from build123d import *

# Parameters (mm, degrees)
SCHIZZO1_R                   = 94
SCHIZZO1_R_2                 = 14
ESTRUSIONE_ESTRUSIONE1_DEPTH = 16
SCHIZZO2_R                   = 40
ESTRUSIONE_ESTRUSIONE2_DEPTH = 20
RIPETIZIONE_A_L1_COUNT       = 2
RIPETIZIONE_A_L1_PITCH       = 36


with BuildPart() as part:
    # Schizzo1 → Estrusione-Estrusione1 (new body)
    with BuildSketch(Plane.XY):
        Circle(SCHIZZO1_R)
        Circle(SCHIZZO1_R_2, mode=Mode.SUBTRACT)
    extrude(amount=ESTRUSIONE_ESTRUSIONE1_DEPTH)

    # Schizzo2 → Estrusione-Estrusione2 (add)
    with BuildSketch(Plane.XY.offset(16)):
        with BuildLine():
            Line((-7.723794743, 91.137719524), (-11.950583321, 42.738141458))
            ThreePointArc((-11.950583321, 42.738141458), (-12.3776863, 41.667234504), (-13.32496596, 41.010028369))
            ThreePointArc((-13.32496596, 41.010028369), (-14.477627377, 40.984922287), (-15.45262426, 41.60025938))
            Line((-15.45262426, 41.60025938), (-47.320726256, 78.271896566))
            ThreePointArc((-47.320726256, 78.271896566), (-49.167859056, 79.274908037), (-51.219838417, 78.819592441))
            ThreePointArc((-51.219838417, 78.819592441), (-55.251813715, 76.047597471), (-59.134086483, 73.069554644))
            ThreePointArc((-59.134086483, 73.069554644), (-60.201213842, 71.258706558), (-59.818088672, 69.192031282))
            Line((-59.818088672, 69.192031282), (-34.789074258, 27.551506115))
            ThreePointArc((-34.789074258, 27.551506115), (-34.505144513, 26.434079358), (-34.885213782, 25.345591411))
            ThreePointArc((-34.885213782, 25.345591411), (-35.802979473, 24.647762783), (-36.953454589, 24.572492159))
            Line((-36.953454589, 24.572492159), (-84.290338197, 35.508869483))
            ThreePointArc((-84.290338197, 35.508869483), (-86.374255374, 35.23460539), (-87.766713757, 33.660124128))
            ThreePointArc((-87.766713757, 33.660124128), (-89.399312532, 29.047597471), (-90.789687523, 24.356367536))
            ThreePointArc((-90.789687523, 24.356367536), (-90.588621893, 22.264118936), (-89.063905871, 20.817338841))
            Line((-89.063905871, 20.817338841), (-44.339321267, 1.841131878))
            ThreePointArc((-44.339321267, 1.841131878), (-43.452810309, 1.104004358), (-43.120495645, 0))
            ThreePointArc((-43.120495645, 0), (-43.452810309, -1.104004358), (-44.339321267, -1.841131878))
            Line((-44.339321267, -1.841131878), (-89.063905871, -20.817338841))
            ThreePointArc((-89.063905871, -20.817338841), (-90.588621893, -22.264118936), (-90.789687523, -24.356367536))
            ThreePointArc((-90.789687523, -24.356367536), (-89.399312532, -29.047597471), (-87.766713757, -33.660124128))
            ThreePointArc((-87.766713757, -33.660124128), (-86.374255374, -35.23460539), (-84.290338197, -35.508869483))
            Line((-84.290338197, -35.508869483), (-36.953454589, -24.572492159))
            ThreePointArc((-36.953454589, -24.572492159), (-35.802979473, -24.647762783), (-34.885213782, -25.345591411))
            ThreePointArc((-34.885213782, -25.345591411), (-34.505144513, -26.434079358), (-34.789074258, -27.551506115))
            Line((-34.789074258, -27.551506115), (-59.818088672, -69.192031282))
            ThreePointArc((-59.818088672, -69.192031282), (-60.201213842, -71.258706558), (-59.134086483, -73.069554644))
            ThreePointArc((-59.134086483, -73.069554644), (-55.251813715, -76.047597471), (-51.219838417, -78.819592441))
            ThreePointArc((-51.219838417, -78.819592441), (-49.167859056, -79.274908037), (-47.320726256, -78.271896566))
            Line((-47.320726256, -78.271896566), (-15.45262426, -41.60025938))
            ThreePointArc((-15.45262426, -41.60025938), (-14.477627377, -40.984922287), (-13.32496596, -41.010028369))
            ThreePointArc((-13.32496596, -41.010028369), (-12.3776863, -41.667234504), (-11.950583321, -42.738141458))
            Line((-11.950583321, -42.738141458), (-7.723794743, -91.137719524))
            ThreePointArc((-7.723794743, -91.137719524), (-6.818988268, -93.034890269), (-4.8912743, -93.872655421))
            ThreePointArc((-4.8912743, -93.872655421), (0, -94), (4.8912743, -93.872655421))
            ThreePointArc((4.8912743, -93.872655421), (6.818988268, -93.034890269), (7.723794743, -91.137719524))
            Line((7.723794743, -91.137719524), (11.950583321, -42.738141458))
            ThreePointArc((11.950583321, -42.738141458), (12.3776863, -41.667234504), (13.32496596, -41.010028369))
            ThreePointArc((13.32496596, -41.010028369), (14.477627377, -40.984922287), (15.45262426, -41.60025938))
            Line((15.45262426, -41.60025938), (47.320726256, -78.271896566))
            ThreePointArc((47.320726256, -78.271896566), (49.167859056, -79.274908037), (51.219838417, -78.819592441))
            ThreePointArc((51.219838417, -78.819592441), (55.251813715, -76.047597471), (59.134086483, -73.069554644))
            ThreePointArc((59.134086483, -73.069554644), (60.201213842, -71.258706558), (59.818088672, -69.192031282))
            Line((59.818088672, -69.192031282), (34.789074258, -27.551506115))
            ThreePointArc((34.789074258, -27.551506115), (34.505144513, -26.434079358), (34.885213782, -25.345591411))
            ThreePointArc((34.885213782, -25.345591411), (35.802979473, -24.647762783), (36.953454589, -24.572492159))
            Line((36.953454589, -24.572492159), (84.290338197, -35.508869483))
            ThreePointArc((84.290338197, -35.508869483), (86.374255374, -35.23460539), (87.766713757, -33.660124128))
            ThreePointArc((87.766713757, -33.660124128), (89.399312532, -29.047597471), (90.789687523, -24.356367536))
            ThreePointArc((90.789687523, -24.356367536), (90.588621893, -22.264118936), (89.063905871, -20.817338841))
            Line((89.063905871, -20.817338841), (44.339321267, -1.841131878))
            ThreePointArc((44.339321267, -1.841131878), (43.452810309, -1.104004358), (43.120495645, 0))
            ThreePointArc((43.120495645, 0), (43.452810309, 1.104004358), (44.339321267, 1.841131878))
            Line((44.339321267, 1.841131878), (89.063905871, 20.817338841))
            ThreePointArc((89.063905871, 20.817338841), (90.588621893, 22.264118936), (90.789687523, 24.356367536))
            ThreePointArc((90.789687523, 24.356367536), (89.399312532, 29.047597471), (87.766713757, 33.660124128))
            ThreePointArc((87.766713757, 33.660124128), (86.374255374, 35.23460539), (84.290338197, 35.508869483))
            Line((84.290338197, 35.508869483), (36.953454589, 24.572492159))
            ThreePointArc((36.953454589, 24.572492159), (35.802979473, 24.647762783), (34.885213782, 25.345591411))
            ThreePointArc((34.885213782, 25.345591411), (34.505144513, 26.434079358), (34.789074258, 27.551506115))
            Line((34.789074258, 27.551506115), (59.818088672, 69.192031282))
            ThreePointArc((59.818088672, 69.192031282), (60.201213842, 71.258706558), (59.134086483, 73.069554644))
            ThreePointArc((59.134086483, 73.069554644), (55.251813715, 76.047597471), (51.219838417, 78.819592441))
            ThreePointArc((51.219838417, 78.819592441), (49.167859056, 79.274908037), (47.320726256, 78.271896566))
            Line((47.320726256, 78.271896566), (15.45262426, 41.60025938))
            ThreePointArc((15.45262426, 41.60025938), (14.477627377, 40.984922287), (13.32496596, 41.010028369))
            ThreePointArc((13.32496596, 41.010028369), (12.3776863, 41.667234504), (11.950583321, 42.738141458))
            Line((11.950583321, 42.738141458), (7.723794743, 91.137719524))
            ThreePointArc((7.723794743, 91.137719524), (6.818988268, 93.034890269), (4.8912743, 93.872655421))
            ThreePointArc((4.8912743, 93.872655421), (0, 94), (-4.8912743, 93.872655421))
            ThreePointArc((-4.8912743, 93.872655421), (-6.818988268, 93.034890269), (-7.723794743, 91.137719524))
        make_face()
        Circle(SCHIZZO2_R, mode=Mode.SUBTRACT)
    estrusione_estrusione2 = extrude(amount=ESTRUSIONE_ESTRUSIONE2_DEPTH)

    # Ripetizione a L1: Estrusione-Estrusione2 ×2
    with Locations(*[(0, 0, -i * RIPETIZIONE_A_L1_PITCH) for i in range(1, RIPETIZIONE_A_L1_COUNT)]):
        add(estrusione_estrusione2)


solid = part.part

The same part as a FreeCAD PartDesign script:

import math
import FreeCAD as App
import Part
import Sketcher
from FreeCAD import Vector
Q = App.Units.Quantity

doc = App.newDocument("Part")
body = doc.addObject("PartDesign::Body", "Body")

# Sketch on XY plane
sketch1 = doc.addObject("Sketcher::SketchObject", "Sketch")
body.addObject(sketch1)
sketch1.AttachmentSupport = (doc.XY_Plane, [""])
sketch1.MapMode = "FlatFace"
sketch1.addGeometry([
    Part.Circle(Vector(0, 0, 0), Vector(0, 0, 1), 94),
    Part.Circle(Vector(0, 0, 0), Vector(0, 0, 1), 14),
], False)
sketch1.addConstraint([
    Sketcher.Constraint("Coincident", 0, 3, -1, 1),
    Sketcher.Constraint("Coincident", 1, 3, -1, 1),
    Sketcher.Constraint("Diameter", 0, Q("188 mm")),
    Sketcher.Constraint("Diameter", 1, Q("28 mm")),
])
pad1 = doc.addObject("PartDesign::Pad", "Pad")
body.addObject(pad1)
pad1.Profile = sketch1
pad1.Length = 16

# Sketch on XY plane
sketch2 = doc.addObject("Sketcher::SketchObject", "Sketch001")
body.addObject(sketch2)
sketch2.AttachmentSupport = (doc.XY_Plane, [""])
sketch2.MapMode = "FlatFace"
sketch2.AttachmentOffset = App.Placement(Vector(0, 0, 16), App.Rotation())
sketch2.addGeometry([
    Part.LineSegment(Vector(-7.7, 91.1, 0), Vector(-12, 42.7, 0)),  # 0
    Part.ArcOfCircle(Part.Circle(Vector(-13.9, 42.9, 0), Vector(0, 0, 1), 2), math.radians(-72), math.radians(-5)),  # 1
    Part.ArcOfCircle(Part.Circle(Vector(-13.9, 42.9, 0), Vector(0, 0, 1), 2), math.radians(-139), math.radians(-72)),  # 2
    Part.LineSegment(Vector(-15.5, 41.6, 0), Vector(-47.3, 78.3, 0)),  # 3
    Part.ArcOfCircle(Part.Circle(Vector(-49.6, 76.3, 0), Vector(0, 0, 1), 3), math.radians(41), math.radians(123)),  # 4
    Part.ArcOfCircle(Part.Circle(Vector(0, 0, 0), Vector(0, 0, 1), 94), math.radians(123.02), math.radians(128.98)),  # 5
    Part.ArcOfCircle(Part.Circle(Vector(-57.2, 70.7, 0), Vector(0, 0, 1), 3), math.radians(129), math.radians(211)),  # 6
    Part.LineSegment(Vector(-59.8, 69.2, 0), Vector(-34.8, 27.6, 0)),  # 7
    Part.ArcOfCircle(Part.Circle(Vector(-36.5, 26.5, 0), Vector(0, 0, 1), 2), math.radians(-36), math.radians(31)),  # 8
    Part.ArcOfCircle(Part.Circle(Vector(-36.5, 26.5, 0), Vector(0, 0, 1), 2), math.radians(-103), math.radians(-36)),  # 9
    Part.LineSegment(Vector(-37, 24.6, 0), Vector(-84.3, 35.5, 0)),  # 10
    Part.ArcOfCircle(Part.Circle(Vector(-85, 32.6, 0), Vector(0, 0, 1), 3), math.radians(77), math.radians(159)),  # 11
    Part.ArcOfCircle(Part.Circle(Vector(0, 0, 0), Vector(0, 0, 1), 94), math.radians(159.02), math.radians(164.98)),  # 12
    Part.ArcOfCircle(Part.Circle(Vector(-87.9, 23.6, 0), Vector(0, 0, 1), 3), math.radians(165), math.radians(247)),  # 13
    Part.LineSegment(Vector(-89.1, 20.8, 0), Vector(-44.3, 1.8, 0)),  # 14
    Part.ArcOfCircle(Part.Circle(Vector(-45.1, 0, 0), Vector(0, 0, 1), 2), math.radians(0), math.radians(67)),  # 15
    Part.ArcOfCircle(Part.Circle(Vector(-45.1, 0, 0), Vector(0, 0, 1), 2), math.radians(-67), math.radians(0)),  # 16
    Part.LineSegment(Vector(-44.3, -1.8, 0), Vector(-89.1, -20.8, 0)),  # 17
    Part.ArcOfCircle(Part.Circle(Vector(-87.9, -23.6, 0), Vector(0, 0, 1), 3), math.radians(113), math.radians(195)),  # 18
    Part.ArcOfCircle(Part.Circle(Vector(0, 0, 0), Vector(0, 0, 1), 94), math.radians(-164.98), math.radians(-159.02)),  # 19
    Part.ArcOfCircle(Part.Circle(Vector(-85, -32.6, 0), Vector(0, 0, 1), 3), math.radians(-159), math.radians(-77)),  # 20
    Part.LineSegment(Vector(-84.3, -35.5, 0), Vector(-37, -24.6, 0)),  # 21
    Part.ArcOfCircle(Part.Circle(Vector(-36.5, -26.5, 0), Vector(0, 0, 1), 2), math.radians(36), math.radians(103)),  # 22
    Part.ArcOfCircle(Part.Circle(Vector(-36.5, -26.5, 0), Vector(0, 0, 1), 2), math.radians(-31), math.radians(36)),  # 23
    Part.LineSegment(Vector(-34.8, -27.6, 0), Vector(-59.8, -69.2, 0)),  # 24
    Part.ArcOfCircle(Part.Circle(Vector(-57.2, -70.7, 0), Vector(0, 0, 1), 3), math.radians(149), math.radians(231)),  # 25
    Part.ArcOfCircle(Part.Circle(Vector(0, 0, 0), Vector(0, 0, 1), 94), math.radians(-128.98), math.radians(-123.02)),  # 26
    Part.ArcOfCircle(Part.Circle(Vector(-49.6, -76.3, 0), Vector(0, 0, 1), 3), math.radians(-123), math.radians(-41)),  # 27
    Part.LineSegment(Vector(-47.3, -78.3, 0), Vector(-15.5, -41.6, 0)),  # 28
    Part.ArcOfCircle(Part.Circle(Vector(-13.9, -42.9, 0), Vector(0, 0, 1), 2), math.radians(72), math.radians(139)),  # 29
    Part.ArcOfCircle(Part.Circle(Vector(-13.9, -42.9, 0), Vector(0, 0, 1), 2), math.radians(5), math.radians(72)),  # 30
    Part.LineSegment(Vector(-12, -42.7, 0), Vector(-7.7, -91.1, 0)),  # 31
    Part.ArcOfCircle(Part.Circle(Vector(-4.7, -90.9, 0), Vector(0, 0, 1), 3), math.radians(-175), math.radians(-93)),  # 32
    Part.ArcOfCircle(Part.Circle(Vector(0, 0, 0), Vector(0, 0, 1), 94), math.radians(-92.98), math.radians(-87.02)),  # 33
    Part.ArcOfCircle(Part.Circle(Vector(4.7, -90.9, 0), Vector(0, 0, 1), 3), math.radians(-87), math.radians(-5)),  # 34
    Part.LineSegment(Vector(7.7, -91.1, 0), Vector(12, -42.7, 0)),  # 35
    Part.ArcOfCircle(Part.Circle(Vector(13.9, -42.9, 0), Vector(0, 0, 1), 2), math.radians(108), math.radians(175)),  # 36
    Part.ArcOfCircle(Part.Circle(Vector(13.9, -42.9, 0), Vector(0, 0, 1), 2), math.radians(41), math.radians(108)),  # 37
    Part.LineSegment(Vector(15.5, -41.6, 0), Vector(47.3, -78.3, 0)),  # 38
    Part.ArcOfCircle(Part.Circle(Vector(49.6, -76.3, 0), Vector(0, 0, 1), 3), math.radians(-139), math.radians(-57)),  # 39
    Part.ArcOfCircle(Part.Circle(Vector(0, 0, 0), Vector(0, 0, 1), 94), math.radians(-56.98), math.radians(-51.02)),  # 40
    Part.ArcOfCircle(Part.Circle(Vector(57.2, -70.7, 0), Vector(0, 0, 1), 3), math.radians(-51), math.radians(31)),  # 41
    Part.LineSegment(Vector(59.8, -69.2, 0), Vector(34.8, -27.6, 0)),  # 42
    Part.ArcOfCircle(Part.Circle(Vector(36.5, -26.5, 0), Vector(0, 0, 1), 2), math.radians(144), math.radians(211)),  # 43
    Part.ArcOfCircle(Part.Circle(Vector(36.5, -26.5, 0), Vector(0, 0, 1), 2), math.radians(77), math.radians(144)),  # 44
    Part.LineSegment(Vector(37, -24.6, 0), Vector(84.3, -35.5, 0)),  # 45
    Part.ArcOfCircle(Part.Circle(Vector(85, -32.6, 0), Vector(0, 0, 1), 3), math.radians(-103), math.radians(-21)),  # 46
    Part.ArcOfCircle(Part.Circle(Vector(0, 0, 0), Vector(0, 0, 1), 94), math.radians(-20.98), math.radians(-15.02)),  # 47
    Part.ArcOfCircle(Part.Circle(Vector(87.9, -23.6, 0), Vector(0, 0, 1), 3), math.radians(-15), math.radians(67)),  # 48
    Part.LineSegment(Vector(89.1, -20.8, 0), Vector(44.3, -1.8, 0)),  # 49
    Part.ArcOfCircle(Part.Circle(Vector(45.1, 0, 0), Vector(0, 0, 1), 2), math.radians(180), math.radians(247)),  # 50
    Part.ArcOfCircle(Part.Circle(Vector(45.1, 0, 0), Vector(0, 0, 1), 2), math.radians(113), math.radians(180)),  # 51
    Part.LineSegment(Vector(44.3, 1.8, 0), Vector(89.1, 20.8, 0)),  # 52
    Part.ArcOfCircle(Part.Circle(Vector(87.9, 23.6, 0), Vector(0, 0, 1), 3), math.radians(-67), math.radians(15)),  # 53
    Part.ArcOfCircle(Part.Circle(Vector(0, 0, 0), Vector(0, 0, 1), 94), math.radians(15.02), math.radians(20.98)),  # 54
    Part.ArcOfCircle(Part.Circle(Vector(85, 32.6, 0), Vector(0, 0, 1), 3), math.radians(21), math.radians(103)),  # 55
    Part.LineSegment(Vector(84.3, 35.5, 0), Vector(37, 24.6, 0)),  # 56
    Part.ArcOfCircle(Part.Circle(Vector(36.5, 26.5, 0), Vector(0, 0, 1), 2), math.radians(-144), math.radians(-77)),  # 57
    Part.ArcOfCircle(Part.Circle(Vector(36.5, 26.5, 0), Vector(0, 0, 1), 2), math.radians(149), math.radians(216)),  # 58
    Part.LineSegment(Vector(34.8, 27.6, 0), Vector(59.8, 69.2, 0)),  # 59
    Part.ArcOfCircle(Part.Circle(Vector(57.2, 70.7, 0), Vector(0, 0, 1), 3), math.radians(-31), math.radians(51)),  # 60
    Part.ArcOfCircle(Part.Circle(Vector(0, 0, 0), Vector(0, 0, 1), 94), math.radians(51.02), math.radians(56.98)),  # 61
    Part.ArcOfCircle(Part.Circle(Vector(49.6, 76.3, 0), Vector(0, 0, 1), 3), math.radians(57), math.radians(139)),  # 62
    Part.LineSegment(Vector(47.3, 78.3, 0), Vector(15.5, 41.6, 0)),  # 63
    Part.ArcOfCircle(Part.Circle(Vector(13.9, 42.9, 0), Vector(0, 0, 1), 2), math.radians(-108), math.radians(-41)),  # 64
    Part.ArcOfCircle(Part.Circle(Vector(13.9, 42.9, 0), Vector(0, 0, 1), 2), math.radians(-175), math.radians(-108)),  # 65
    Part.LineSegment(Vector(12, 42.7, 0), Vector(7.7, 91.1, 0)),  # 66
    Part.ArcOfCircle(Part.Circle(Vector(4.7, 90.9, 0), Vector(0, 0, 1), 3), math.radians(5), math.radians(87)),  # 67
    Part.ArcOfCircle(Part.Circle(Vector(0, 0, 0), Vector(0, 0, 1), 94), math.radians(87.02), math.radians(92.98)),  # 68
    Part.ArcOfCircle(Part.Circle(Vector(-4.7, 90.9, 0), Vector(0, 0, 1), 3), math.radians(93), math.radians(175)),  # 69
    Part.Circle(Vector(0, 0, 0), Vector(0, 0, 1), 40),  # 70
], False)
sketch2.addConstraint([
    Sketcher.Constraint("Tangent", 0, 2, 1, 2),
    Sketcher.Constraint("Tangent", 1, 1, 2, 2),
    Sketcher.Constraint("Tangent", 2, 1, 3, 1),
    Sketcher.Constraint("Tangent", 3, 2, 4, 1),
    Sketcher.Constraint("Tangent", 4, 2, 5, 1),
    Sketcher.Constraint("Tangent", 5, 2, 6, 1),
    Sketcher.Constraint("Tangent", 6, 2, 7, 1),
    Sketcher.Constraint("Tangent", 7, 2, 8, 2),
    Sketcher.Constraint("Tangent", 8, 1, 9, 2),
    Sketcher.Constraint("Tangent", 9, 1, 10, 1),
    Sketcher.Constraint("Tangent", 10, 2, 11, 1),
    Sketcher.Constraint("Tangent", 11, 2, 12, 1),
    Sketcher.Constraint("Tangent", 12, 2, 13, 1),
    Sketcher.Constraint("Tangent", 13, 2, 14, 1),
    Sketcher.Constraint("Tangent", 14, 2, 15, 2),
    Sketcher.Constraint("Tangent", 15, 1, 16, 2),
    Sketcher.Constraint("Tangent", 16, 1, 17, 1),
    Sketcher.Constraint("Tangent", 17, 2, 18, 1),
    Sketcher.Constraint("Tangent", 18, 2, 19, 1),
    Sketcher.Constraint("Tangent", 19, 2, 20, 1),
    Sketcher.Constraint("Tangent", 20, 2, 21, 1),
    Sketcher.Constraint("Tangent", 21, 2, 22, 2),
    Sketcher.Constraint("Tangent", 22, 1, 23, 2),
    Sketcher.Constraint("Tangent", 23, 1, 24, 1),
    Sketcher.Constraint("Tangent", 24, 2, 25, 1),
    Sketcher.Constraint("Tangent", 25, 2, 26, 1),
    Sketcher.Constraint("Tangent", 26, 2, 27, 1),
    Sketcher.Constraint("Tangent", 27, 2, 28, 1),
    Sketcher.Constraint("Tangent", 28, 2, 29, 2),
    Sketcher.Constraint("Tangent", 29, 1, 30, 2),
    Sketcher.Constraint("Tangent", 30, 1, 31, 1),
    Sketcher.Constraint("Tangent", 31, 2, 32, 1),
    Sketcher.Constraint("Tangent", 32, 2, 33, 1),
    Sketcher.Constraint("Tangent", 33, 2, 34, 1),
    Sketcher.Constraint("Tangent", 34, 2, 35, 1),
    Sketcher.Constraint("Tangent", 35, 2, 36, 2),
    Sketcher.Constraint("Tangent", 36, 1, 37, 2),
    Sketcher.Constraint("Tangent", 37, 1, 38, 1),
    Sketcher.Constraint("Tangent", 38, 2, 39, 1),
    Sketcher.Constraint("Tangent", 39, 2, 40, 1),
    Sketcher.Constraint("Tangent", 40, 2, 41, 1),
    Sketcher.Constraint("Tangent", 41, 2, 42, 1),
    Sketcher.Constraint("Tangent", 42, 2, 43, 2),
    Sketcher.Constraint("Tangent", 43, 1, 44, 2),
    Sketcher.Constraint("Tangent", 44, 1, 45, 1),
    Sketcher.Constraint("Tangent", 45, 2, 46, 1),
    Sketcher.Constraint("Tangent", 46, 2, 47, 1),
    Sketcher.Constraint("Tangent", 47, 2, 48, 1),
    Sketcher.Constraint("Tangent", 48, 2, 49, 1),
    Sketcher.Constraint("Tangent", 49, 2, 50, 2),
    Sketcher.Constraint("Tangent", 50, 1, 51, 2),
    Sketcher.Constraint("Tangent", 51, 1, 52, 1),
    Sketcher.Constraint("Tangent", 52, 2, 53, 1),
    Sketcher.Constraint("Tangent", 53, 2, 54, 1),
    Sketcher.Constraint("Tangent", 54, 2, 55, 1),
    Sketcher.Constraint("Tangent", 55, 2, 56, 1),
    Sketcher.Constraint("Tangent", 56, 2, 57, 2),
    Sketcher.Constraint("Tangent", 57, 1, 58, 2),
    Sketcher.Constraint("Tangent", 58, 1, 59, 1),
    Sketcher.Constraint("Tangent", 59, 2, 60, 1),
    Sketcher.Constraint("Tangent", 60, 2, 61, 1),
    Sketcher.Constraint("Tangent", 61, 2, 62, 1),
    Sketcher.Constraint("Tangent", 62, 2, 63, 1),
    Sketcher.Constraint("Tangent", 63, 2, 64, 2),
    Sketcher.Constraint("Tangent", 64, 1, 65, 2),
    Sketcher.Constraint("Tangent", 65, 1, 66, 1),
    Sketcher.Constraint("Tangent", 66, 2, 67, 1),
    Sketcher.Constraint("Tangent", 67, 2, 68, 1),
    Sketcher.Constraint("Tangent", 68, 2, 69, 1),
    Sketcher.Constraint("Tangent", 69, 2, 0, 1),
    Sketcher.Constraint("Coincident", 5, 3, -1, 1),
    Sketcher.Constraint("Coincident", 12, 3, -1, 1),
    Sketcher.Constraint("Coincident", 19, 3, -1, 1),
    Sketcher.Constraint("Coincident", 26, 3, -1, 1),
    Sketcher.Constraint("Coincident", 33, 3, -1, 1),
    Sketcher.Constraint("Coincident", 40, 3, -1, 1),
    Sketcher.Constraint("Coincident", 47, 3, -1, 1),
    Sketcher.Constraint("Coincident", 54, 3, -1, 1),
    Sketcher.Constraint("Coincident", 61, 3, -1, 1),
    Sketcher.Constraint("Coincident", 68, 3, -1, 1),
    Sketcher.Constraint("Coincident", 70, 3, -1, 1),
    Sketcher.Constraint("Equal", 1, 2),
    Sketcher.Constraint("Equal", 4, 6),
    Sketcher.Constraint("Equal", 2, 8),
    Sketcher.Constraint("Equal", 8, 9),
    Sketcher.Constraint("Equal", 6, 11),
    Sketcher.Constraint("Equal", 5, 12),
    Sketcher.Constraint("Equal", 11, 13),
    Sketcher.Constraint("Equal", 9, 15),
    Sketcher.Constraint("Equal", 15, 16),
    Sketcher.Constraint("Equal", 13, 18),
    Sketcher.Constraint("Equal", 12, 19),
    Sketcher.Constraint("Equal", 18, 20),
    Sketcher.Constraint("Equal", 16, 22),
    Sketcher.Constraint("Equal", 22, 23),
    Sketcher.Constraint("Equal", 20, 25),
    Sketcher.Constraint("Equal", 19, 26),
    Sketcher.Constraint("Equal", 25, 27),
    Sketcher.Constraint("Equal", 23, 29),
    Sketcher.Constraint("Equal", 29, 30),
    Sketcher.Constraint("Equal", 27, 32),
    Sketcher.Constraint("Equal", 26, 33),
    Sketcher.Constraint("Equal", 32, 34),
    Sketcher.Constraint("Equal", 30, 36),
    Sketcher.Constraint("Equal", 36, 37),
    Sketcher.Constraint("Equal", 34, 39),
    Sketcher.Constraint("Equal", 33, 40),
    Sketcher.Constraint("Equal", 39, 41),
    Sketcher.Constraint("Equal", 37, 43),
    Sketcher.Constraint("Equal", 43, 44),
    Sketcher.Constraint("Equal", 41, 46),
    Sketcher.Constraint("Equal", 40, 47),
    Sketcher.Constraint("Equal", 46, 48),
    Sketcher.Constraint("Equal", 44, 50),
    Sketcher.Constraint("Equal", 50, 51),
    Sketcher.Constraint("Equal", 48, 53),
    Sketcher.Constraint("Equal", 47, 54),
    Sketcher.Constraint("Equal", 53, 55),
    Sketcher.Constraint("Equal", 51, 57),
    Sketcher.Constraint("Equal", 57, 58),
    Sketcher.Constraint("Equal", 55, 60),
    Sketcher.Constraint("Equal", 54, 61),
    Sketcher.Constraint("Equal", 60, 62),
    Sketcher.Constraint("Equal", 58, 64),
    Sketcher.Constraint("Equal", 64, 65),
    Sketcher.Constraint("Equal", 62, 67),
    Sketcher.Constraint("Equal", 61, 68),
    Sketcher.Constraint("Equal", 67, 69),
    Sketcher.Constraint("Symmetric", 1, 3, 36, 3, -1, 1),
    Sketcher.Constraint("Symmetric", 8, 3, 43, 3, -1, 1),
    Sketcher.Constraint("Symmetric", 15, 3, 50, 3, -1, 1),
    Sketcher.Constraint("Symmetric", 22, 3, 57, 3, -1, 1),
    Sketcher.Constraint("Symmetric", 29, 3, 64, 3, -1, 1),
    Sketcher.Constraint("Symmetric", 29, 3, 36, 3, -2),
    Sketcher.Constraint("Symmetric", 22, 3, 43, 3, -2),
    Sketcher.Constraint("Symmetric", 17, 2, 48, 2, -2),
    Sketcher.Constraint("PointOnObject", 15, 1, -1),
    Sketcher.Constraint("PointOnObject", 50, 1, -1),
    Sketcher.Constraint("Parallel", 0, 35),
    Sketcher.Constraint("Parallel", 3, 38),
    Sketcher.Constraint("Parallel", 7, 42),
    Sketcher.Constraint("Parallel", 10, 45),
    Sketcher.Constraint("Parallel", 14, 49),
    Sketcher.Constraint("Parallel", 17, 52),
    Sketcher.Constraint("Parallel", 21, 56),
    Sketcher.Constraint("Parallel", 24, 59),
    Sketcher.Constraint("Parallel", 28, 63),
    Sketcher.Constraint("Parallel", 31, 66),
    Sketcher.Constraint("Horizontal", 32, 3, 34, 3),
    Sketcher.Constraint("Horizontal", 27, 3, 39, 3),
    Sketcher.Constraint("Horizontal", 25, 3, 41, 3),
    Sketcher.Constraint("Horizontal", 20, 3, 46, 3),
    Sketcher.Constraint("Horizontal", 29, 1, 36, 1),
    Sketcher.Constraint("Horizontal", 22, 1, 43, 1),
    Sketcher.Constraint("Horizontal", 8, 1, 57, 1),
    Sketcher.Constraint("Horizontal", 1, 1, 64, 1),
    Sketcher.Constraint("Vertical", 8, 1, 22, 1),
    Sketcher.Constraint("Vertical", 1, 1, 29, 1),
    Sketcher.Constraint("Equal", 0, 3),
    Sketcher.Constraint("Equal", 3, 7),
    Sketcher.Constraint("Equal", 7, 10),
    Sketcher.Constraint("Equal", 10, 14),
    Sketcher.Constraint("Diameter", 70, Q("80 mm")),
    Sketcher.Constraint("Radius", 1, Q("2 mm")),
    Sketcher.Constraint("Radius", 4, Q("3 mm")),
    Sketcher.Constraint("Radius", 5, Q("94.000001 mm")),
    Sketcher.Constraint("DistanceX", 1, 3, -1, 1, Q("13.943 mm")),
    Sketcher.Constraint("DistanceY", -1, 1, 1, 3, Q("42.912141 mm")),
    Sketcher.Constraint("DistanceX", 6, 3, -1, 1, Q("57.246828 mm")),
    Sketcher.Constraint("DistanceY", -1, 1, 8, 3, Q("26.521162 mm")),
    Sketcher.Constraint("DistanceX", 11, 3, -1, 1, Q("84.965648 mm")),
    Sketcher.Constraint("DistanceY", -1, 1, 1, 1, Q("41.010028 mm")),
    Sketcher.Constraint("DistanceY", -1, 1, 8, 1, Q("25.345591 mm")),
    Sketcher.Constraint("DistanceY", -1, 1, 13, 2, Q("20.817339 mm")),
])
pad2 = doc.addObject("PartDesign::Pad", "Pad001")
body.addObject(pad2)
pad2.Profile = sketch2
pad2.Length = 20
doc.recompute()

linearpattern = doc.addObject("PartDesign::LinearPattern", "LinearPattern")
body.addObject(linearpattern)
linearpattern.Originals = [pad2]
linearpattern.Direction = (doc.Z_Axis, [""])
linearpattern.Mode = "offset"
linearpattern.Offset = 36
linearpattern.Occurrences = 2
linearpattern.Reversed = True
body.Tip = linearpattern

doc.recompute()
